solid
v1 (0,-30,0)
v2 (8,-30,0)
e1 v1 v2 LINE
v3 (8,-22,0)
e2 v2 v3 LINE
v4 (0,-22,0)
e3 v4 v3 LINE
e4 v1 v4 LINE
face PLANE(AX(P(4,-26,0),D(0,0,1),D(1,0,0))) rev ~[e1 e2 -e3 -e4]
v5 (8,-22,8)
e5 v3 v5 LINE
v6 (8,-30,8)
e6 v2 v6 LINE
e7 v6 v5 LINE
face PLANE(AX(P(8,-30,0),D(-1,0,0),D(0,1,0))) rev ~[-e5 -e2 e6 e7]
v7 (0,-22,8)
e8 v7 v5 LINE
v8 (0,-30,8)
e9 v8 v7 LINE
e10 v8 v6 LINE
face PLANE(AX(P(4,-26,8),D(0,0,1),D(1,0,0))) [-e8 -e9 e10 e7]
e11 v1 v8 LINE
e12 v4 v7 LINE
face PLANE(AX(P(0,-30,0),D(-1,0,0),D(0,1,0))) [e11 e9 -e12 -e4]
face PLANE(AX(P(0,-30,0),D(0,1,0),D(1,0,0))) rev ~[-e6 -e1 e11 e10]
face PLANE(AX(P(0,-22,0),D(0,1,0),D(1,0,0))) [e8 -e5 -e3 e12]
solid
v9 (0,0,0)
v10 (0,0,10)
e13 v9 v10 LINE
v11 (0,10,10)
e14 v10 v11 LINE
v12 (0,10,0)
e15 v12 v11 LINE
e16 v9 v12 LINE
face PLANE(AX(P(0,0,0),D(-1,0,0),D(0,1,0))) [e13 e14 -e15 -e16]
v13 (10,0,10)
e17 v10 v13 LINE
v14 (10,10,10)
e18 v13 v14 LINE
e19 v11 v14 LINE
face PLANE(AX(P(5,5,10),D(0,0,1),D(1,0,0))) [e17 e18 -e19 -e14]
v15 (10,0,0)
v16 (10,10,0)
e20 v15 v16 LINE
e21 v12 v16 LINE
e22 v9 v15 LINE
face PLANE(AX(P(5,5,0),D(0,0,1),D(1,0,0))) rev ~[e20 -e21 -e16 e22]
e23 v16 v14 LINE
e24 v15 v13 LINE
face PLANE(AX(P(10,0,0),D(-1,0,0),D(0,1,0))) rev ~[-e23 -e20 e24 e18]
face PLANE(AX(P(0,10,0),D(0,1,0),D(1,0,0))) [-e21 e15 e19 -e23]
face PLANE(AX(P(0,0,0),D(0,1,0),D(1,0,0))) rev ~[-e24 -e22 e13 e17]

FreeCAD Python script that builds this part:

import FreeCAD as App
import Part
import Sketcher
Q = App.Units.Quantity


def add_polygon(sketch, points):
    """Adds a closed chain of lines whose ends are joined by coincident constraints."""
    first, n = sketch.GeometryCount, len(points)
    for a, b in zip(points, points[1:] + points[:1]):
        sketch.addGeometry(Part.LineSegment(App.Vector(*a, 0), App.Vector(*b, 0)), False)
    for i in range(n):
        sketch.addConstraint(Sketcher.Constraint("Coincident", first + i, 2, first + (i + 1) % n, 1))

doc = App.newDocument("Part")
body = doc.addObject("PartDesign::Body", "Body")

# Sketch on XY plane
sketch1 = body.newObject("Sketcher::SketchObject", "Sketch")
sketch1.AttachmentSupport = (doc.getObject("XY_Plane"), [""])
sketch1.MapMode = "FlatFace"
add_polygon(sketch1, [(0, -22), (0, -30), (8, -30), (8, -22)])  # lines 0-3
sketch1.addConstraint(Sketcher.Constraint("Vertical", 0))
sketch1.addConstraint(Sketcher.Constraint("Horizontal", 1))
sketch1.addConstraint(Sketcher.Constraint("Vertical", 2))
sketch1.addConstraint(Sketcher.Constraint("Horizontal", 3))
sketch1.addConstraint(Sketcher.Constraint("PointOnObject", 0, 2, -2))
sketch1.addConstraint(Sketcher.Constraint("Equal", 3, 0))
sketch1.addConstraint(Sketcher.Constraint("DistanceX", 1, 1, 1, 2, Q("8 mm")))
sketch1.addConstraint(Sketcher.Constraint("DistanceY", 0, 2, -1, 1, Q("30 mm")))
pad1 = body.newObject("PartDesign::Pad", "Pad")
pad1.Profile = sketch1
pad1.Length = 8
body2 = doc.addObject("PartDesign::Body", "Body001")
body2.AllowCompound = True

# Sketch on XY plane
sketch2 = body2.newObject("Sketcher::SketchObject", "Sketch001")
sketch2.AttachmentSupport = (doc.getObject("XY_Plane001"), [""])
sketch2.MapMode = "FlatFace"
add_polygon(sketch2, [(0, 10), (0, 0), (10, 0), (10, 10)])  # lines 0-3
sketch2.addConstraint(Sketcher.Constraint("Vertical", 0))
sketch2.addConstraint(Sketcher.Constraint("Horizontal", 1))
sketch2.addConstraint(Sketcher.Constraint("Vertical", 2))
sketch2.addConstraint(Sketcher.Constraint("Horizontal", 3))
sketch2.addConstraint(Sketcher.Constraint("Coincident", 0, 2, -1, 1))
sketch2.addConstraint(Sketcher.Constraint("Equal", 3, 0))
sketch2.addConstraint(Sketcher.Constraint("DistanceX", 1, 1, 1, 2, Q("10 mm")))
pad2 = body2.newObject("PartDesign::Pad", "Pad001")
pad2.Profile = sketch2
pad2.Length = 10
doc.recompute()

boolean = body2.newObject("PartDesign::Boolean", "Boolean")
boolean.Type = "Fuse"
boolean.addObjects([body])

doc.recompute()
